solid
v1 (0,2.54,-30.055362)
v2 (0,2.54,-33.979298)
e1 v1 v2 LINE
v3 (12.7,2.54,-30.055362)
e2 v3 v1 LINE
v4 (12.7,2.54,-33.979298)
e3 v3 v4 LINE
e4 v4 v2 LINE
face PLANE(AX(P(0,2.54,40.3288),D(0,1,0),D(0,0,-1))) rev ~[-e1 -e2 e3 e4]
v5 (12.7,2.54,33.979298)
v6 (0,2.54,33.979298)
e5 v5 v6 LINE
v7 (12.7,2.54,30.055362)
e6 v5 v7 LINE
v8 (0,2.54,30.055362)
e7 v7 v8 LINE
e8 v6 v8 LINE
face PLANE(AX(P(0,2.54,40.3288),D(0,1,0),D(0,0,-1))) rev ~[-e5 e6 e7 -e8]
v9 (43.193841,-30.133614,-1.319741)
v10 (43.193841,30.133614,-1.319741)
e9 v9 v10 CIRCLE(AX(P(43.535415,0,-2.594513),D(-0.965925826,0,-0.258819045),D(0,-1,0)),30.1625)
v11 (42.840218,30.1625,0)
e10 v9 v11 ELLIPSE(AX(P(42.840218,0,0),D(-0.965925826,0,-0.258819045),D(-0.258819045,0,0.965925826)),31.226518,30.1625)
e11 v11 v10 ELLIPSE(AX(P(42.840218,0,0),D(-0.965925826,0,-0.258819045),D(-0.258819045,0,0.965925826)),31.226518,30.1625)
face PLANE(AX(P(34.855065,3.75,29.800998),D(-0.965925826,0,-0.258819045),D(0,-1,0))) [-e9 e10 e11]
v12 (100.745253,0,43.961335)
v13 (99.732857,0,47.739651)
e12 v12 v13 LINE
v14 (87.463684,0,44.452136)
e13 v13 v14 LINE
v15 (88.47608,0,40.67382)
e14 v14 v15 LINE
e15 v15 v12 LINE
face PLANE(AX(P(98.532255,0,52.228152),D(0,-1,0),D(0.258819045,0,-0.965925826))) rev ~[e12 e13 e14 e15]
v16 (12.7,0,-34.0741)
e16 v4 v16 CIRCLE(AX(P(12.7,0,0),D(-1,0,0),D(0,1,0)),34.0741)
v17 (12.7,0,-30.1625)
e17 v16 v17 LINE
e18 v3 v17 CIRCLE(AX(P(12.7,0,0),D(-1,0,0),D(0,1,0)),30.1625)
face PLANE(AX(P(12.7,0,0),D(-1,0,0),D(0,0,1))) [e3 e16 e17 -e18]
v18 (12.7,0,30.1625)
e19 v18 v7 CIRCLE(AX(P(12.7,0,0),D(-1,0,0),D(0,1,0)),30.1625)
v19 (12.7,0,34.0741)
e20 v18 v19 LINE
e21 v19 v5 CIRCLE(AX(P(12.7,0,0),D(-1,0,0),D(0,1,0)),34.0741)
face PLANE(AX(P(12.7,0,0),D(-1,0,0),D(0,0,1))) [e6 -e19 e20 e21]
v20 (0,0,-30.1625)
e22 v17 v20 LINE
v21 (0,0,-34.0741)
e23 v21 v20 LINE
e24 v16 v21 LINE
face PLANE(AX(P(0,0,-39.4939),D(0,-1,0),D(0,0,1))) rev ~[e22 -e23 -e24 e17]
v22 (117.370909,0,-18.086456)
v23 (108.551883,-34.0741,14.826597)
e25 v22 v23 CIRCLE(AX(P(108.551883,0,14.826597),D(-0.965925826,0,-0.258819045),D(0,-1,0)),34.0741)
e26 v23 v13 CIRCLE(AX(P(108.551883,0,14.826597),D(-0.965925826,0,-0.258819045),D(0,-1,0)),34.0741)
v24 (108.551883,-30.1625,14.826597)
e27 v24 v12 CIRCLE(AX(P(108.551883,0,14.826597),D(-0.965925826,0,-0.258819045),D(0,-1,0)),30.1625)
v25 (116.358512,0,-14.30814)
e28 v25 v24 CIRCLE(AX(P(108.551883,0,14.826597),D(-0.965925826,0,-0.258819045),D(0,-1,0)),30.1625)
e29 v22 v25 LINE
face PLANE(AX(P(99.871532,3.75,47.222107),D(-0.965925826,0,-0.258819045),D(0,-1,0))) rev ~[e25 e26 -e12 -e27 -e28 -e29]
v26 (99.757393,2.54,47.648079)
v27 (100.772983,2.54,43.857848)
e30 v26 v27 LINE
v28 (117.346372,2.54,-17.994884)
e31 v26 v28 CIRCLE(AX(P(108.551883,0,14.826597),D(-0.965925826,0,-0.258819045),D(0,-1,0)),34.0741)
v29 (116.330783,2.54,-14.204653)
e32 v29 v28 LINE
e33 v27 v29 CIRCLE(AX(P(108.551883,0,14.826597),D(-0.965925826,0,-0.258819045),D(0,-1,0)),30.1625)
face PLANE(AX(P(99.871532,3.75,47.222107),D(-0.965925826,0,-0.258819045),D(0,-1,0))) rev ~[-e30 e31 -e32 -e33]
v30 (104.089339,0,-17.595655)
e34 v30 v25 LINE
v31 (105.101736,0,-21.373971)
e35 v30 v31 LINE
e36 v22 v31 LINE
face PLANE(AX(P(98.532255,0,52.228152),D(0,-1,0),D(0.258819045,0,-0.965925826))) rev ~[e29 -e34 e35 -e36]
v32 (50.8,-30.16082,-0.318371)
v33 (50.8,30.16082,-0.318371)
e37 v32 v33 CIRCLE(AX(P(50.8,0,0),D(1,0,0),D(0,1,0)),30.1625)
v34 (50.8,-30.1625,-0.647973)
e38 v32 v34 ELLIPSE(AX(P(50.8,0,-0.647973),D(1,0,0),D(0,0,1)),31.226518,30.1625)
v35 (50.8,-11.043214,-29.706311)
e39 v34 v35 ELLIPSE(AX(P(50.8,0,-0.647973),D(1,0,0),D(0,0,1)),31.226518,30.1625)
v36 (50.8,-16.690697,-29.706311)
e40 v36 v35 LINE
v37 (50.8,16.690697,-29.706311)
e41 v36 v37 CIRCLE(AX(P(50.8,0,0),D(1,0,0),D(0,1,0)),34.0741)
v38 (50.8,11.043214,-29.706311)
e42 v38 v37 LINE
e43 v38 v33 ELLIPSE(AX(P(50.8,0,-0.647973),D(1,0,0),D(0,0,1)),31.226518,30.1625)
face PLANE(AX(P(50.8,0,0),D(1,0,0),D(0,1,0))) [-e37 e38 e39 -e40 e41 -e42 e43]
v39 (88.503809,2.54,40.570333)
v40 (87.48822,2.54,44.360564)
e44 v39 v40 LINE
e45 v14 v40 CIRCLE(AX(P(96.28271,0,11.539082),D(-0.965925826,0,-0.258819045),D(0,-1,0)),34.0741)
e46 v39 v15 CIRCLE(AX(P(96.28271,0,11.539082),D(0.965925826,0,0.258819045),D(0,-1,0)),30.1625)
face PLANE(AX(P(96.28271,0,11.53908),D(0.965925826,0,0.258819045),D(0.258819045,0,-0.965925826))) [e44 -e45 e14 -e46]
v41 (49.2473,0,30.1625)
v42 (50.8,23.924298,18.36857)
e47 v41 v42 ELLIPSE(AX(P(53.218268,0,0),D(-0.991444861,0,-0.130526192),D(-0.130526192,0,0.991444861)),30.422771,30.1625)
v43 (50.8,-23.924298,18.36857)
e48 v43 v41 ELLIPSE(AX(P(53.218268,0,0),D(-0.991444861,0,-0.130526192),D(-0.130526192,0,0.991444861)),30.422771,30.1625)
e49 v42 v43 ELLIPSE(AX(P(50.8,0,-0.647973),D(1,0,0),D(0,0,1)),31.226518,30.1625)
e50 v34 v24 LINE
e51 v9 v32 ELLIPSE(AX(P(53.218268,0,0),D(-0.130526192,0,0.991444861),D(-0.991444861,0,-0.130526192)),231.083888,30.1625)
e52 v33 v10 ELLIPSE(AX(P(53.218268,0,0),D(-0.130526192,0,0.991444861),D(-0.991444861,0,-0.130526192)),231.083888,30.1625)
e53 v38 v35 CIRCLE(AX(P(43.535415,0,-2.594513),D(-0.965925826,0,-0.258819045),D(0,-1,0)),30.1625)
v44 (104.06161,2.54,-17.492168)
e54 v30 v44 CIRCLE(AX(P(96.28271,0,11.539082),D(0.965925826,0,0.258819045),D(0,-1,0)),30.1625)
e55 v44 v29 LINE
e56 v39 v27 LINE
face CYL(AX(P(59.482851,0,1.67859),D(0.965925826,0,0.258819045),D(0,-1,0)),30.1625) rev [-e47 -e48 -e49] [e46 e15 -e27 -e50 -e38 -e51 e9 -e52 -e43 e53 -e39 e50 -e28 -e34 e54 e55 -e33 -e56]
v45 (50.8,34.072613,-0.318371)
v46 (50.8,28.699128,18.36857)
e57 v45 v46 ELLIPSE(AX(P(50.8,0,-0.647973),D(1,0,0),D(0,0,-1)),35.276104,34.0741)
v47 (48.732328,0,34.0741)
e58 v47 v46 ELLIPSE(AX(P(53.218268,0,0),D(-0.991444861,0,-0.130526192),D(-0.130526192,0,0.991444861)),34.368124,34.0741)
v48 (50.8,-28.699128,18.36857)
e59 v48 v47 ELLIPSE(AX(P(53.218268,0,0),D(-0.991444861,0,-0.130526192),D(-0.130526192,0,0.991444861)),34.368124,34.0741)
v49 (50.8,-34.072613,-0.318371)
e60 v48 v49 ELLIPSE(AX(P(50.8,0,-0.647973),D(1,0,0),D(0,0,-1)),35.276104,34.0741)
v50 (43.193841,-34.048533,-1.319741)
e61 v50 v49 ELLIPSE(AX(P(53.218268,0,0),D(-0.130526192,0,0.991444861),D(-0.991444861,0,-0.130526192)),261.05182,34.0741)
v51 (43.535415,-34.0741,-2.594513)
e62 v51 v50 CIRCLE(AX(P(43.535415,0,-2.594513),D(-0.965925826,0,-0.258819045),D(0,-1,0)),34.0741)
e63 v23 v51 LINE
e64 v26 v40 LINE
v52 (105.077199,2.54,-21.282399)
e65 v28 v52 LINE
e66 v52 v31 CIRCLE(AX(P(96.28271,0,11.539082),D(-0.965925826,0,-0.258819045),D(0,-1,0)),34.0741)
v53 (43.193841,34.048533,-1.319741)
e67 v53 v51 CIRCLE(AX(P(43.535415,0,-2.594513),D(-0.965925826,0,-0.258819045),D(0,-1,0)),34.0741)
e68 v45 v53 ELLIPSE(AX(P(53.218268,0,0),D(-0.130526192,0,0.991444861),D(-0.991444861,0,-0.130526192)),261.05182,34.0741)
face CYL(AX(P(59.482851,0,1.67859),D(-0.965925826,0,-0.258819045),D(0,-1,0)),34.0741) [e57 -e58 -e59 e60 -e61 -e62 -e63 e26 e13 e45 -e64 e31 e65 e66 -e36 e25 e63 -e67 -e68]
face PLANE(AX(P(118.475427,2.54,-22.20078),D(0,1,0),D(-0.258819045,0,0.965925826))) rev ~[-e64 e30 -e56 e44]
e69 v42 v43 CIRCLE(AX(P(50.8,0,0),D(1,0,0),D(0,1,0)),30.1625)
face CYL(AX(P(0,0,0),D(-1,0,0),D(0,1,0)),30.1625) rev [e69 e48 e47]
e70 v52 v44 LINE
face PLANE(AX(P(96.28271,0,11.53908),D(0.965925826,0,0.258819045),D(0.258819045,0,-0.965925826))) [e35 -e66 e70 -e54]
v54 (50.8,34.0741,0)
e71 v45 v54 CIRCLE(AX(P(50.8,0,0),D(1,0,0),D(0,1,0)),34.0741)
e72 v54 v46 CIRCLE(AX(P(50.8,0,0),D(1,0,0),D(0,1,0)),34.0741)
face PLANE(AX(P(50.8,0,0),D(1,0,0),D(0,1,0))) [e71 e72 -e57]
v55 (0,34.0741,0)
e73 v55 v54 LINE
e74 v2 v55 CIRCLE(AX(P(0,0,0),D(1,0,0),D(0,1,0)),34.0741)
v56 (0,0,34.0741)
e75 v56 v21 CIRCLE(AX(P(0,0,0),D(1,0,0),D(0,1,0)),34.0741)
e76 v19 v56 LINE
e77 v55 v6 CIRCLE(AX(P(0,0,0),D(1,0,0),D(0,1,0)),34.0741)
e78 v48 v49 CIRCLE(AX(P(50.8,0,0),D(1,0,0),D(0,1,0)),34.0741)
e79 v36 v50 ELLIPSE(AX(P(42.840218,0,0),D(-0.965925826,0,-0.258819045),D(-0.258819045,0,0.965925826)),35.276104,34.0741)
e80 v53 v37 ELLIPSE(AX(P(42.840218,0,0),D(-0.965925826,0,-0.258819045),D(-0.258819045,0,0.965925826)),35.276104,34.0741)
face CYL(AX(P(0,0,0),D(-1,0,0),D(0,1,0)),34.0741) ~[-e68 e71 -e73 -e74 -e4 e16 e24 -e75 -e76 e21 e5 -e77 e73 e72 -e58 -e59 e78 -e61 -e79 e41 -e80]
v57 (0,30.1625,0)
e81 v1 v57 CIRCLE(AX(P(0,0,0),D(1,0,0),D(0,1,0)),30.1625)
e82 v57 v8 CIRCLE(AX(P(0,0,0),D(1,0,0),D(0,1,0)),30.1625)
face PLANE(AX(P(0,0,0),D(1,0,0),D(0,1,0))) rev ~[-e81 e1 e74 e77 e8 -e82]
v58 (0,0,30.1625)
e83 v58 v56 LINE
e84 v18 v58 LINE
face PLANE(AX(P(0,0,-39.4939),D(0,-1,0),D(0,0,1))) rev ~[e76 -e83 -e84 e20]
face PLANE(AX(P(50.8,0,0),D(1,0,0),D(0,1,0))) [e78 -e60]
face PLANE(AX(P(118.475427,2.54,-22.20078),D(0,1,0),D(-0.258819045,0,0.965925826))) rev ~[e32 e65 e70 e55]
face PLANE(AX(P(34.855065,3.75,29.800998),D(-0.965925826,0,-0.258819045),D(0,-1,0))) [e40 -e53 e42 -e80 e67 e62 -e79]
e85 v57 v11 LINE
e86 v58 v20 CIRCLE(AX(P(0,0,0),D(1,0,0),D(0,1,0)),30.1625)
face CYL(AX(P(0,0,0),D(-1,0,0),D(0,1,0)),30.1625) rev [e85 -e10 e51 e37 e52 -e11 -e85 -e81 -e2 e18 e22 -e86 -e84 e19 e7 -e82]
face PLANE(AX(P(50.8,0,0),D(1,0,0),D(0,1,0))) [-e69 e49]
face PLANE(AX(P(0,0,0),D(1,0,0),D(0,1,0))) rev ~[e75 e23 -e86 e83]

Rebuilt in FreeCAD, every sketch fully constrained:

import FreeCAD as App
import Part
import Sketcher

V = App.Vector
Q = App.Units.Quantity


def add_polygon(sketch, points):
    """Adds a closed chain of lines whose ends are joined by coincident constraints."""
    first, n = sketch.GeometryCount, len(points)
    for a, b in zip(points, points[1:] + points[:1]):
        sketch.addGeometry(Part.LineSegment(App.Vector(*a, 0), App.Vector(*b, 0)), False)
    for i in range(n):
        sketch.addConstraint(Sketcher.Constraint("Coincident", first + i, 2, first + (i + 1) % n, 1))

doc = App.newDocument("Part")
params = doc.addObject("Spreadsheet::Sheet", "Params")
for row, (alias, value) in enumerate([
    ("sketch1_diameter", "2.375 in"),
    ("sketch1_diameter2", "2.683 in"),
    ("pad1_length", "2 in"),
    ("sketch2_diameter", "2.375 in"),
    ("sketch2_diameter2", "2.683 in"),
    ("pad2_length", "2 in"),
    ("pad2_length2", "0.65 in"),
    ("sketch3_height", "0.1 in"),
    ("pocket1_length", "0.5 in"),
    ("sketch4_width", "0.1 in"),
    ("pocket2_length", "0.5 in"),
], start=1):
    params.set(f"A{row}", alias)
    params.set(f"B{row}", "=" + value)
    params.setAlias(f"B{row}", alias)

body = doc.addObject("PartDesign::Body", "Body")

# Sketch on YZ plane
sketch1 = body.newObject("Sketcher::SketchObject", "Sketch")
sketch1.AttachmentSupport = (doc.getObject("YZ_Plane"), [""])
sketch1.MapMode = "FlatFace"
sketch1.addGeometry(Part.Circle(V(0, 0, 0), V(0, 0, 1), 34), False)
sketch1.addGeometry(Part.Circle(V(0, 0, 0), V(0, 0, 1), 30), False)
sketch1.addConstraint(Sketcher.Constraint("Coincident", 0, 3, -1, 1))
sketch1.addConstraint(Sketcher.Constraint("Coincident", 1, 3, -1, 1))
sketch1.addConstraint(Sketcher.Constraint("Diameter", 1, Q("2.375 in")))
sketch1.addConstraint(Sketcher.Constraint("Diameter", 0, Q("2.683 in")))
sketch1.setExpression("Constraints[2]", "Params.sketch1_diameter")
sketch1.setExpression("Constraints[3]", "Params.sketch1_diameter2")
pad1 = body.newObject("PartDesign::Pad", "Pad")
pad1.Profile = sketch1
pad1.setExpression("Length", "Params.pad1_length")

# Sketch on an angled plane
sketch2 = body.newObject("Sketcher::SketchObject", "Sketch001")
sketch2.Placement = App.Placement(V(50.8025, 3.75, 34.0741), App.Rotation(V(0, -1, 0), V(-0.258819045, 0, 0.965925826), V(-0.965925826, 0, -0.258819045), "ZXY"))
sketch2.addGeometry(Part.Circle(V(4, -34, 0), V(0, 0, 1), 34), False)
sketch2.addGeometry(Part.Circle(V(4, -34, 0), V(0, 0, 1), 30), False)
sketch2.addConstraint(Sketcher.Constraint("Coincident", 1, 3, 0, 3))
sketch2.addConstraint(Sketcher.Constraint("Diameter", 1, Q("2.375 in")))
sketch2.addConstraint(Sketcher.Constraint("Diameter", 0, Q("2.683 in")))
sketch2.addConstraint(Sketcher.Constraint("DistanceY", 0, 3, -1, 1, Q("1.3204 in")))
sketch2.addConstraint(Sketcher.Constraint("DistanceX", -1, 1, 0, 3, 3.75))
sketch2.setExpression("Constraints[1]", "Params.sketch2_diameter")
sketch2.setExpression("Constraints[2]", "Params.sketch2_diameter2")
pad2 = body.newObject("PartDesign::Pad", "Pad001")
pad2.Profile = sketch2
pad2.Type = "TwoLengths"
pad2.setExpression("Length", "Params.pad2_length")
pad2.setExpression("Length2", "Params.pad2_length2")
pad2.Reversed = True

# Sketch on an angled plane
sketch3 = body.newObject("Sketcher::SketchObject", "Sketch002")
sketch3.Placement = App.Placement(V(108.5519, 0, 14.8266), App.Rotation(V(0.258819045, 0, -0.965925826), V(0, 0.999999999, 0), V(0.965925826, 0, 0.258819045), "ZXY"))
add_polygon(sketch3, [(-38.7, 2.5), (-38.7, 0), (38.3, 0), (38.3, 2.5)])  # lines 0-3
sketch3.addConstraint(Sketcher.Constraint("Vertical", 0))
sketch3.addConstraint(Sketcher.Constraint("Horizontal", 1))
sketch3.addConstraint(Sketcher.Constraint("Vertical", 2))
sketch3.addConstraint(Sketcher.Constraint("Horizontal", 3))
sketch3.addConstraint(Sketcher.Constraint("PointOnObject", 0, 2, -1))
sketch3.addConstraint(Sketcher.Constraint("DistanceY", 0, 2, 0, 1, Q("0.1 in")))
sketch3.addConstraint(Sketcher.Constraint("DistanceX", 1, 1, 1, 2, 77.0545))
sketch3.addConstraint(Sketcher.Constraint("DistanceX", 0, 2, -1, 1, 38.7204))
sketch3.setExpression("Constraints[9]", "Params.sketch3_height")
pocket1 = body.newObject("PartDesign::Pocket", "Pocket")
pocket1.Profile = sketch3
pocket1.setExpression("Length", "Params.pocket1_length")

# Sketch on YZ plane
sketch4 = body.newObject("Sketcher::SketchObject", "Sketch003")
sketch4.AttachmentSupport = (doc.getObject("YZ_Plane"), [""])
sketch4.MapMode = "FlatFace"
add_polygon(sketch4, [(2.5, -39.5), (0, -39.5), (0, 40.3), (2.5, 40.3)])  # lines 0-3
sketch4.addConstraint(Sketcher.Constraint("Horizontal", 0))
sketch4.addConstraint(Sketcher.Constraint("Vertical", 1))
sketch4.addConstraint(Sketcher.Constraint("Horizontal", 2))
sketch4.addConstraint(Sketcher.Constraint("Vertical", 3))
sketch4.addConstraint(Sketcher.Constraint("PointOnObject", 0, 2, -2))
sketch4.addConstraint(Sketcher.Constraint("DistanceX", 0, 2, 0, 1, Q("0.1 in")))
sketch4.addConstraint(Sketcher.Constraint("DistanceY", 1, 1, 1, 2, 79.8227))
sketch4.addConstraint(Sketcher.Constraint("DistanceY", 0, 2, -1, 1, 39.494))
sketch4.setExpression("Constraints[9]", "Params.sketch4_width")
pocket2 = body.newObject("PartDesign::Pocket", "Pocket001")
pocket2.Profile = sketch4
pocket2.setExpression("Length", "Params.pocket2_length")
pocket2.Reversed = True

doc.recompute()
